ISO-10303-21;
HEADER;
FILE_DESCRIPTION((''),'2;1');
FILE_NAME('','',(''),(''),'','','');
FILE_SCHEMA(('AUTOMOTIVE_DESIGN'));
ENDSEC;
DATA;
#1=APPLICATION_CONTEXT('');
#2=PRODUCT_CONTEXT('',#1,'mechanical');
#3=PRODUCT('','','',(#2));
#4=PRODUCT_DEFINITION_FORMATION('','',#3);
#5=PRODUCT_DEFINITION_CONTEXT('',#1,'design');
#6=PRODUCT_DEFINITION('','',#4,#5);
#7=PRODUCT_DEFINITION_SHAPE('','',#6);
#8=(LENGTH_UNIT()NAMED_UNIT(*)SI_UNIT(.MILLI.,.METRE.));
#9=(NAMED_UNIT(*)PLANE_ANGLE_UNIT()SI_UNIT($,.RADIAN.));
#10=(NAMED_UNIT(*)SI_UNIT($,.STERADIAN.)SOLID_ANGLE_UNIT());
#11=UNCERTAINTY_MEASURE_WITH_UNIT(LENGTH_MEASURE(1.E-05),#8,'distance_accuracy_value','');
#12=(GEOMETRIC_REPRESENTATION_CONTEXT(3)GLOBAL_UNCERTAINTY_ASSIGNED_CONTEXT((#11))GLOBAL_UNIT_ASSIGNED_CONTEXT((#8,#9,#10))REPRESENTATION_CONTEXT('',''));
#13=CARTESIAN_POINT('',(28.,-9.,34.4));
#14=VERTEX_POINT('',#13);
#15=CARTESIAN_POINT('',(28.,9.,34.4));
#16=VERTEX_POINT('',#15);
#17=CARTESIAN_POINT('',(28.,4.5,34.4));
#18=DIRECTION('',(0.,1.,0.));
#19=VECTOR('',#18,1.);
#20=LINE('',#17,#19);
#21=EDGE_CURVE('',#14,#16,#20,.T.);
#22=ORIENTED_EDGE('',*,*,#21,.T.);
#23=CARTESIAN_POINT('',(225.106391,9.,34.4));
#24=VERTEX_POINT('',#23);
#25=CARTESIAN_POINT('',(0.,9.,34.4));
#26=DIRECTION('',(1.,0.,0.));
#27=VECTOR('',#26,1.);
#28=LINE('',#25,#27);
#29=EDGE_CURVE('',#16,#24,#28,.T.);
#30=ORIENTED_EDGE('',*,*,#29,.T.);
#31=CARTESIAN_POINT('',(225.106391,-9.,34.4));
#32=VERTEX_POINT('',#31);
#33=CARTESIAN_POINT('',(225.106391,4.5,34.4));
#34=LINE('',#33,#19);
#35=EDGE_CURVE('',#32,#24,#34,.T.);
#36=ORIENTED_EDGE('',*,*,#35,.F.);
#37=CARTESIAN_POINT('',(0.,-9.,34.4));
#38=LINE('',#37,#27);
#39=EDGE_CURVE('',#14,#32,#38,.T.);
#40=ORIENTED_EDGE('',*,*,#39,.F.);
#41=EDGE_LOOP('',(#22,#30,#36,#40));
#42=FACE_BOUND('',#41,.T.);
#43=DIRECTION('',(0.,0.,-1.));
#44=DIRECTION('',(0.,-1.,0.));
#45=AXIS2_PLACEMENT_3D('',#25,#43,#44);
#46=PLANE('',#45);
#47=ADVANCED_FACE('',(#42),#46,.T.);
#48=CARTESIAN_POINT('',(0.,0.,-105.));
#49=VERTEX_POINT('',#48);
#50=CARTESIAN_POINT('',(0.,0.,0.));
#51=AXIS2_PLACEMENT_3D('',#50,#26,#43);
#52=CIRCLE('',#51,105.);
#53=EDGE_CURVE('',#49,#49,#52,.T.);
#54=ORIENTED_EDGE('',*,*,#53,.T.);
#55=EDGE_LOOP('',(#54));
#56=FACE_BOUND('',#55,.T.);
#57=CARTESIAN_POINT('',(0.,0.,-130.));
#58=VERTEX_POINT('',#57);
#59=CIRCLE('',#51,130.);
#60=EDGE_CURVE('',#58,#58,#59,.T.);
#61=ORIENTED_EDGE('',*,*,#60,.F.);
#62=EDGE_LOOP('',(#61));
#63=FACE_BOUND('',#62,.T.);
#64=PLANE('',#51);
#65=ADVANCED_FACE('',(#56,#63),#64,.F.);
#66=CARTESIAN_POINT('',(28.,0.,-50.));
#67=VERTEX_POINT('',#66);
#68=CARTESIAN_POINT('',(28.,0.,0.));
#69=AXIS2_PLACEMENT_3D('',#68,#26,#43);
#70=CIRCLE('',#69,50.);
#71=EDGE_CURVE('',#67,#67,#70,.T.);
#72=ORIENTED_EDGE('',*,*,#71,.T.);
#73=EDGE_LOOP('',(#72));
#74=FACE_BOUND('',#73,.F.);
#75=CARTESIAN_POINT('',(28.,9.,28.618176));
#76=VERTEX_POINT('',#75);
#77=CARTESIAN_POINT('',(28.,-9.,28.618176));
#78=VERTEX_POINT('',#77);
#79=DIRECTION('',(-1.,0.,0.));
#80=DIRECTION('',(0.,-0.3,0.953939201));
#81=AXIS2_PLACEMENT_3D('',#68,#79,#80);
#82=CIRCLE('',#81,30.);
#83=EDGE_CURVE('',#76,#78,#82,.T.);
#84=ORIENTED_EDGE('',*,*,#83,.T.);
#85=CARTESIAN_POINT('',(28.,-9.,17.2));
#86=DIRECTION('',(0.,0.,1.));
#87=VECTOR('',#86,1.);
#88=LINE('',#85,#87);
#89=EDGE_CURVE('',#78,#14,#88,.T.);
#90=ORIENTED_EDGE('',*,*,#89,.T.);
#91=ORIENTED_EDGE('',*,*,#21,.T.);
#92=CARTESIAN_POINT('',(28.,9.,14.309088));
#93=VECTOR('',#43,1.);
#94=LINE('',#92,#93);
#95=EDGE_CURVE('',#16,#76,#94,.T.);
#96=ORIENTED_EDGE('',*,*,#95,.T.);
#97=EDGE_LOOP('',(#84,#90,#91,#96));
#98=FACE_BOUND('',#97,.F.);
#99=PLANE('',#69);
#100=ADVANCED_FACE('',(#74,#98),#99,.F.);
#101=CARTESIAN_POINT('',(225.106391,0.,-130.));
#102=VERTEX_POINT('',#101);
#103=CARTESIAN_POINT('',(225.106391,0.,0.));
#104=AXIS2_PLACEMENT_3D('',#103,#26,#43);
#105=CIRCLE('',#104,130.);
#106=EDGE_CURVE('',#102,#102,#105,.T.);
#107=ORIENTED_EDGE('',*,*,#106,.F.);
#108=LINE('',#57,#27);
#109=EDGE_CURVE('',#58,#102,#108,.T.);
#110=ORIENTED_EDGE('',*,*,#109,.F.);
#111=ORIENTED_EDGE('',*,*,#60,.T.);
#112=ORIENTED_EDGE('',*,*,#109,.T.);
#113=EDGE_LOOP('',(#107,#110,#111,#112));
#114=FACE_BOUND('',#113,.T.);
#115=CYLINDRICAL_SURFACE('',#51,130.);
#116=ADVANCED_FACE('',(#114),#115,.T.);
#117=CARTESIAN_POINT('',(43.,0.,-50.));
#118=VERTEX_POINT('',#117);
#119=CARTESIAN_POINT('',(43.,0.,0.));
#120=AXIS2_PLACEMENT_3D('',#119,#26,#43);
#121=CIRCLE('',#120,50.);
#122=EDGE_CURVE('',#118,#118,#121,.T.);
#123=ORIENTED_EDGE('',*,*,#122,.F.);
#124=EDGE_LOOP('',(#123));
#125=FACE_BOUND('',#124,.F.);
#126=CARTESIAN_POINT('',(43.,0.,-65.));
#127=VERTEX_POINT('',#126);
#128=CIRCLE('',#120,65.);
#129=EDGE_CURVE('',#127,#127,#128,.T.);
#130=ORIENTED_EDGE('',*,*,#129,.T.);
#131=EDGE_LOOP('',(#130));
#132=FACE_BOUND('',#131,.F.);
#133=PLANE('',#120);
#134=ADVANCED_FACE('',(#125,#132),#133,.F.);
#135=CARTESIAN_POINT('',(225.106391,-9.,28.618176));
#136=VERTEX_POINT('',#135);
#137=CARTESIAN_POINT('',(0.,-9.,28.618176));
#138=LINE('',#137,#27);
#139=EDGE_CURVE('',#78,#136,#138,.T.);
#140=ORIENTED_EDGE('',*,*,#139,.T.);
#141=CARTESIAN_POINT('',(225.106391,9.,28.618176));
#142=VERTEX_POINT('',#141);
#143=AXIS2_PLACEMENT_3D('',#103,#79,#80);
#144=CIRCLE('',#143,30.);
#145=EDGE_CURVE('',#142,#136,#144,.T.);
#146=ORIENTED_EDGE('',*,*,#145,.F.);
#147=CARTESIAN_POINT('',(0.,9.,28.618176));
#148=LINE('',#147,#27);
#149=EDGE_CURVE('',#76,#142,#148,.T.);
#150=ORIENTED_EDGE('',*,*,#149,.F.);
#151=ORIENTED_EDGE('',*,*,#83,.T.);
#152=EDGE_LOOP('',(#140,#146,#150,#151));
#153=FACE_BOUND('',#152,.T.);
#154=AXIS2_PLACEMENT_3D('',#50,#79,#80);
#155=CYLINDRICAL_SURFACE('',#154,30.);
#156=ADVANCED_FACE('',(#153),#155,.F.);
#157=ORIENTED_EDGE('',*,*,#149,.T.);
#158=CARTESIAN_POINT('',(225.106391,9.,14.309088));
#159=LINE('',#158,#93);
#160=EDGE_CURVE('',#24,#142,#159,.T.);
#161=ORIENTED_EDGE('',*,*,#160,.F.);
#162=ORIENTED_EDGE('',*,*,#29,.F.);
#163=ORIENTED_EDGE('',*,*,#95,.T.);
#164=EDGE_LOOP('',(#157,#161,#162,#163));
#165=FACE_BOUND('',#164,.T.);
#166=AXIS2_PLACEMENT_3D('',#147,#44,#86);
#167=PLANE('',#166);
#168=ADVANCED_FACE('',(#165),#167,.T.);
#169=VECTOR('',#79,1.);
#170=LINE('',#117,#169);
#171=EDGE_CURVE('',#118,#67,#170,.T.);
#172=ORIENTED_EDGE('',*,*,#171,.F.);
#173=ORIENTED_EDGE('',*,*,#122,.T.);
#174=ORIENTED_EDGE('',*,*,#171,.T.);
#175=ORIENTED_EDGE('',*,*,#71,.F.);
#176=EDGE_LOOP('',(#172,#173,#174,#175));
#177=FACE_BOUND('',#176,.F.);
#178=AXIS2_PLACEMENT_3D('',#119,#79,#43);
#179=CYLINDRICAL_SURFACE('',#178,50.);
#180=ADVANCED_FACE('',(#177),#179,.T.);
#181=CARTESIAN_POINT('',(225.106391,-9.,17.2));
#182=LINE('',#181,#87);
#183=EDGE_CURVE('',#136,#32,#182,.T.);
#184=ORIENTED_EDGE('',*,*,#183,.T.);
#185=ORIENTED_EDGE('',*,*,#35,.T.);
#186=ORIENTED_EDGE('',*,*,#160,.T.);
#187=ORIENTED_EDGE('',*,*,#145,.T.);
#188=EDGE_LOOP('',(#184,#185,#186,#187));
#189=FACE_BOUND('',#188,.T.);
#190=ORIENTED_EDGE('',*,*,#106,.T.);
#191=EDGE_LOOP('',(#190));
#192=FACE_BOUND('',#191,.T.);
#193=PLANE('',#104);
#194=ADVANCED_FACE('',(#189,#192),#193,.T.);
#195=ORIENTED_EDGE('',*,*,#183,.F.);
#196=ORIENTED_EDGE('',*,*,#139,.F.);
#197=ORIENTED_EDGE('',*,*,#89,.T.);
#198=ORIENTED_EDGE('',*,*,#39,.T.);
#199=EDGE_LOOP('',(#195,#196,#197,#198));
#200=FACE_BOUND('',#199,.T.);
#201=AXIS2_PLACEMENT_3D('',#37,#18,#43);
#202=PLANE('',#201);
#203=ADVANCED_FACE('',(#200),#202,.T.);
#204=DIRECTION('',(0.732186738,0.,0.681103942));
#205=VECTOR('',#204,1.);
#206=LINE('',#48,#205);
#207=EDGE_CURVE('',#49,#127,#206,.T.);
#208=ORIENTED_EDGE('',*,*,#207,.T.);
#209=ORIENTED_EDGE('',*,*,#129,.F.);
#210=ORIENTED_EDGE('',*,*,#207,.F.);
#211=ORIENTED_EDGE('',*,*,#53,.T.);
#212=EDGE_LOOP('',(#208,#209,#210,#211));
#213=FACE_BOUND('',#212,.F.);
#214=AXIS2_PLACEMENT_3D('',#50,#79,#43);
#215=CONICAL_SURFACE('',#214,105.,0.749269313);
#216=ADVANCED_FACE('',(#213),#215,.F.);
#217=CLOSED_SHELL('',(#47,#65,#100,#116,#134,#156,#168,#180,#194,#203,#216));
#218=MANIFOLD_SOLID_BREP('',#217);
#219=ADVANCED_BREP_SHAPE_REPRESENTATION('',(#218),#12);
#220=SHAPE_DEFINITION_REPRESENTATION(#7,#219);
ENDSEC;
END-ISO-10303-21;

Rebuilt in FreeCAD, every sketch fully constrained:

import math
import FreeCAD as App
import Part
import Sketcher

V = App.Vector
Q = App.Units.Quantity


def add_polygon(sketch, points):
    """Adds a closed chain of lines whose ends are joined by coincident constraints."""
    first, n = sketch.GeometryCount, len(points)
    for a, b in zip(points, points[1:] + points[:1]):
        sketch.addGeometry(Part.LineSegment(App.Vector(*a, 0), App.Vector(*b, 0)), False)
    for i in range(n):
        sketch.addConstraint(Sketcher.Constraint("Coincident", first + i, 2, first + (i + 1) % n, 1))

doc = App.newDocument("Part")
params = doc.addObject("Spreadsheet::Sheet", "Params")
for row, (alias, value) in enumerate([
    ("sketch1_height", "130 mm"),
    ("revolution_angle", "360 deg"),
    ("sketch2_width", "28 mm"),
    ("sketch2_width2", "15 mm"),
    ("sketch2_height", "105 mm"),
    ("sketch2_height2", "50 mm"),
    ("groove_angle", "360 deg"),
    ("sketch3_radius", "30 mm"),
    ("sketch3_width", "18 mm"),
], start=1):
    params.set(f"A{row}", alias)
    params.set(f"B{row}", "=" + value)
    params.setAlias(f"B{row}", alias)

body = doc.addObject("PartDesign::Body", "Body")

sketch1 = body.newObject("Sketcher::SketchObject", "Sketch")
sketch1.AttachmentSupport = (doc.getObject("XZ_Plane"), [""])
sketch1.MapMode = "FlatFace"
add_polygon(sketch1, [(0, 0), (0, -130), (225.106391, -130), (225.106391, 0)])
sketch1.addConstraint(Sketcher.Constraint("Vertical", 0))
sketch1.addConstraint(Sketcher.Constraint("Horizontal", 1))
sketch1.addConstraint(Sketcher.Constraint("Vertical", 2))
sketch1.addConstraint(Sketcher.Constraint("Horizontal", 3))
sketch1.addConstraint(Sketcher.Constraint("Coincident", 3, 2, -1, 1))
sketch1.addConstraint(Sketcher.Constraint("DistanceY", 0, 2, 0, 1, Q("130 mm")))
sketch1.addConstraint(Sketcher.Constraint("DistanceX", 1, 1, 1, 2, Q("225.106391 mm")))
sketch1.setExpression("Constraints[9]", "Params.sketch1_height")
revolution = body.newObject("PartDesign::Revolution", "Revolution")
revolution.Profile = sketch1
revolution.ReferenceAxis = (sketch1, ["H_Axis"])
revolution.setExpression("Angle", "Params.revolution_angle")

sketch2 = body.newObject("Sketcher::SketchObject", "Sketch001")
sketch2.AttachmentSupport = (doc.getObject("XZ_Plane"), [""])
sketch2.MapMode = "FlatFace"
add_polygon(sketch2, [(28, 0), (0, 0), (0, -105), (43, -65), (43, -50), (28, -50)])
sketch2.addConstraint(Sketcher.Constraint("Horizontal", 0))
sketch2.addConstraint(Sketcher.Constraint("Vertical", 1))
sketch2.addConstraint(Sketcher.Constraint("Vertical", 3))
sketch2.addConstraint(Sketcher.Constraint("Horizontal", 4))
sketch2.addConstraint(Sketcher.Constraint("Vertical", 5))
sketch2.addConstraint(Sketcher.Constraint("Coincident", 0, 2, -1, 1))
sketch2.addConstraint(Sketcher.Constraint("Equal", 4, 3))
sketch2.addConstraint(Sketcher.Constraint("DistanceX", 0, 2, 0, 1, Q("28 mm")))
sketch2.addConstraint(Sketcher.Constraint("DistanceX", 4, 2, 4, 1, Q("15 mm")))
sketch2.addConstraint(Sketcher.Constraint("DistanceY", 1, 2, 1, 1, Q("105 mm")))
sketch2.addConstraint(Sketcher.Constraint("DistanceY", 5, 1, 5, 2, Q("50 mm")))
sketch2.setExpression("Constraints[13]", "Params.sketch2_width")
sketch2.setExpression("Constraints[14]", "Params.sketch2_width2")
sketch2.setExpression("Constraints[15]", "Params.sketch2_height")
sketch2.setExpression("Constraints[16]", "Params.sketch2_height2")
groove = body.newObject("PartDesign::Groove", "Groove")
groove.Profile = sketch2
groove.ReferenceAxis = (sketch2, ["H_Axis"])
groove.setExpression("Angle", "Params.groove_angle")

sketch3 = body.newObject("Sketcher::SketchObject", "Sketch002")
sketch3.AttachmentSupport = (doc.getObject("YZ_Plane"), [""])
sketch3.MapMode = "FlatFace"
sketch3.addGeometry(Part.LineSegment(V(-9, 34.4, 0), V(-9, 28.618176, 0)), False)
sketch3.addGeometry(Part.ArcOfCircle(Part.Circle(V(0, 0, 0), V(0, 0, 1), 30), math.radians(107.457603), math.radians(432.542397)), False)
sketch3.addGeometry(Part.LineSegment(V(9, 28.618176, 0), V(9, 34.4, 0)), False)
sketch3.addGeometry(Part.LineSegment(V(9, 34.4, 0), V(-9, 34.4, 0)), False)
sketch3.addConstraint(Sketcher.Constraint("Coincident", 0, 2, 1, 1))
sketch3.addConstraint(Sketcher.Constraint("Coincident", 1, 2, 2, 1))
sketch3.addConstraint(Sketcher.Constraint("Coincident", 2, 2, 3, 1))
sketch3.addConstraint(Sketcher.Constraint("Coincident", 3, 2, 0, 1))
sketch3.addConstraint(Sketcher.Constraint("Vertical", 0))
sketch3.addConstraint(Sketcher.Constraint("Vertical", 2))
sketch3.addConstraint(Sketcher.Constraint("Horizontal", 3))
sketch3.addConstraint(Sketcher.Constraint("Coincident", 1, 3, -1, 1))
sketch3.addConstraint(Sketcher.Constraint("Horizontal", 0, 2, 1, 2))
sketch3.addConstraint(Sketcher.Constraint("Radius", 1, Q("30 mm")))
sketch3.addConstraint(Sketcher.Constraint("DistanceX", 3, 2, 3, 1, Q("18 mm")))
sketch3.addConstraint(Sketcher.Constraint("DistanceY", -1, 1, 2, 2, Q("34.4 mm")))
sketch3.setExpression("Constraints[9]", "Params.sketch3_radius")
sketch3.setExpression("Constraints[10]", "Params.sketch3_width")
pocket1 = body.newObject("PartDesign::Pocket", "Pocket")
pocket1.Profile = sketch3
pocket1.Type = "ThroughAll"
pocket1.Reversed = True

doc.recompute()
